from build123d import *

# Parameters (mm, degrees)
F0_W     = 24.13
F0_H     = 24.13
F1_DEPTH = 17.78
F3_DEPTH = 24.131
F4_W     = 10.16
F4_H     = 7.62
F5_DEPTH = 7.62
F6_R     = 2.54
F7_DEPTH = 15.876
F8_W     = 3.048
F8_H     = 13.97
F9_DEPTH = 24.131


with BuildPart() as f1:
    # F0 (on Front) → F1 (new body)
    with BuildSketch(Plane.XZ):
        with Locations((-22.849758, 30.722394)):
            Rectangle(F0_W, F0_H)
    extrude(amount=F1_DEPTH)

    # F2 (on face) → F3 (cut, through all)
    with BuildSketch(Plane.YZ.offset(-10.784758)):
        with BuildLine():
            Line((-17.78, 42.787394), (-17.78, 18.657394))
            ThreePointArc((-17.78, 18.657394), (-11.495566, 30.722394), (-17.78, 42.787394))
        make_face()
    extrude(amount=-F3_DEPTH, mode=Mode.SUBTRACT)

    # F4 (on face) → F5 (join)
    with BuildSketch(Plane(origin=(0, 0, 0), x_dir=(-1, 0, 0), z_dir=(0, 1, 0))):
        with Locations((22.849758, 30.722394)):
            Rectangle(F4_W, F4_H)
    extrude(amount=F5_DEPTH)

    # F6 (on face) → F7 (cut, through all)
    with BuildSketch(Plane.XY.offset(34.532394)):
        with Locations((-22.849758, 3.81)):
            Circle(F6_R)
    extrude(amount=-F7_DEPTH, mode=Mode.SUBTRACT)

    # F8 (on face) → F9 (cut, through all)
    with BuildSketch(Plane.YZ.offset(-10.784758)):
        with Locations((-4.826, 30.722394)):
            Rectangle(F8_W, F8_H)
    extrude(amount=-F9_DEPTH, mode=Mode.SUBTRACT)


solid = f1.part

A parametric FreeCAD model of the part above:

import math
import FreeCAD as App
import Part
import Sketcher

V = App.Vector
Q = App.Units.Quantity


def add_polygon(sketch, points):
    """Adds a closed chain of lines whose ends are joined by coincident constraints."""
    first, n = sketch.GeometryCount, len(points)
    for a, b in zip(points, points[1:] + points[:1]):
        sketch.addGeometry(Part.LineSegment(App.Vector(*a, 0), App.Vector(*b, 0)), False)
    for i in range(n):
        sketch.addConstraint(Sketcher.Constraint("Coincident", first + i, 2, first + (i + 1) % n, 1))

doc = App.newDocument("Part")
params = doc.addObject("Spreadsheet::Sheet", "Params")
for row, (alias, value) in enumerate([
    ("sketch1_width", "0.95 in"),
    ("pad1_length", "0.7 in"),
    ("sketch2_height", "0.95 in"),
    ("sketch3_width", "0.4 in"),
    ("sketch3_height", "0.3 in"),
    ("pad2_length", "0.3 in"),
    ("sketch4_diameter", "0.2 in"),
    ("sketch5_width", "0.12 in"),
    ("sketch5_height", "0.55 in"),
], start=1):
    params.set(f"A{row}", alias)
    params.set(f"B{row}", "=" + value)
    params.setAlias(f"B{row}", alias)

body = doc.addObject("PartDesign::Body", "Body")

sketch1 = body.newObject("Sketcher::SketchObject", "Sketch")
sketch1.AttachmentSupport = (doc.getObject("XZ_Plane"), [""])
sketch1.MapMode = "FlatFace"
add_polygon(sketch1, [(-35, 43), (-35, 19), (-11, 19), (-11, 43)])
sketch1.addConstraint([
    Sketcher.Constraint("Vertical", 0),
    Sketcher.Constraint("Horizontal", 1),
    Sketcher.Constraint("Vertical", 2),
    Sketcher.Constraint("Horizontal", 3),
    Sketcher.Constraint("Equal", 3, 0),
    Sketcher.Constraint("DistanceX", 1, 1, 1, 2, Q("0.95 in")),
    Sketcher.Constraint("DistanceX", 0, 2, -1, 1, Q("34.914758 mm")),
    Sketcher.Constraint("DistanceY", -1, 1, 0, 2, Q("18.657394 mm")),
])
sketch1.setExpression("Constraints[9]", "Params.sketch1_width")
pad1 = body.newObject("PartDesign::Pad", "Pad")
pad1.Profile = sketch1
pad1.setExpression("Length", "Params.pad1_length")

sketch2 = body.newObject("Sketcher::SketchObject", "Sketch001")
sketch2.AttachmentSupport = (doc.getObject("YZ_Plane"), [""])
sketch2.MapMode = "FlatFace"
sketch2.AttachmentOffset = App.Placement(V(0, 0, -10.784758), App.Rotation())
sketch2.addGeometry([
    Part.LineSegment(V(-18, 43, 0), V(-18, 19, 0)),
    Part.ArcOfCircle(Part.Circle(V(-26, 31, 0), V(0, 0, 1), 15), math.radians(-55), math.radians(55)),
], False)
sketch2.addConstraint([
    Sketcher.Constraint("Coincident", 0, 1, 1, 2),
    Sketcher.Constraint("Coincident", 1, 1, 0, 2),
    Sketcher.Constraint("Vertical", 0),
    Sketcher.Constraint("DistanceY", 0, 2, 0, 1, Q("0.95 in")),
    Sketcher.Constraint("DistanceX", 0, 1, -1, 1, Q("0.7 in")),
    Sketcher.Constraint("Radius", 1, Q("14.723548 mm")),
    Sketcher.Constraint("DistanceY", -1, 1, 1, 3, Q("30.722394 mm")),
])
sketch2.setExpression("Constraints[3]", "Params.sketch2_height")
pocket1 = body.newObject("PartDesign::Pocket", "Pocket")
pocket1.Profile = sketch2
pocket1.Type = "ThroughAll"

sketch3 = body.newObject("Sketcher::SketchObject", "Sketch002")
sketch3.AttachmentSupport = (doc.getObject("XZ_Plane"), [""])
sketch3.MapMode = "FlatFace"
add_polygon(sketch3, [(-18, 35), (-18, 27), (-28, 27), (-28, 35)])
sketch3.addConstraint([
    Sketcher.Constraint("Vertical", 0),
    Sketcher.Constraint("Horizontal", 1),
    Sketcher.Constraint("Vertical", 2),
    Sketcher.Constraint("Horizontal", 3),
    Sketcher.Constraint("DistanceX", 1, 2, 1, 1, Q("0.4 in")),
    Sketcher.Constraint("DistanceY", 0, 2, 0, 1, Q("0.3 in")),
    Sketcher.Constraint("DistanceX", 0, 2, -1, 1, Q("17.769758 mm")),
    Sketcher.Constraint("DistanceY", -1, 1, 0, 2, Q("26.912394 mm")),
])
sketch3.setExpression("Constraints[8]", "Params.sketch3_width")
sketch3.setExpression("Constraints[9]", "Params.sketch3_height")
pad2 = body.newObject("PartDesign::Pad", "Pad001")
pad2.Profile = sketch3
pad2.setExpression("Length", "Params.pad2_length")
pad2.Reversed = True

sketch4 = body.newObject("Sketcher::SketchObject", "Sketch003")
sketch4.AttachmentSupport = (doc.getObject("XY_Plane"), [""])
sketch4.MapMode = "FlatFace"
sketch4.AttachmentOffset = App.Placement(V(0, 0, 34.532394), App.Rotation())
sketch4.addGeometry(Part.Circle(V(-22.8, 3.8, 0), V(0, 0, 1), 2.5), False)
sketch4.addConstraint([
    Sketcher.Constraint("Diameter", 0, Q("0.2 in")),
    Sketcher.Constraint("DistanceY", -1, 1, 0, 3, Q("0.15 in")),
    Sketcher.Constraint("DistanceX", 0, 3, -1, 1, Q("22.849758 mm")),
])
sketch4.setExpression("Constraints[0]", "Params.sketch4_diameter")
pocket2 = body.newObject("PartDesign::Pocket", "Pocket001")
pocket2.Profile = sketch4
pocket2.Type = "ThroughAll"

sketch5 = body.newObject("Sketcher::SketchObject", "Sketch004")
sketch5.AttachmentSupport = (doc.getObject("YZ_Plane"), [""])
sketch5.MapMode = "FlatFace"
sketch5.AttachmentOffset = App.Placement(V(0, 0, -10.784758), App.Rotation())
add_polygon(sketch5, [(-6.3, 37.7), (-6.3, 23.7), (-3.3, 23.7), (-3.3, 37.7)])
sketch5.addConstraint([
    Sketcher.Constraint("Vertical", 0),
    Sketcher.Constraint("Horizontal", 1),
    Sketcher.Constraint("Vertical", 2),
    Sketcher.Constraint("Horizontal", 3),
    Sketcher.Constraint("DistanceX", 1, 1, 1, 2, Q("0.12 in")),
    Sketcher.Constraint("DistanceY", 0, 2, 0, 1, Q("0.55 in")),
    Sketcher.Constraint("DistanceX", 0, 2, -1, 1, Q("0.25 in")),
    Sketcher.Constraint("DistanceY", -1, 1, 0, 2, Q("23.737394 mm")),
])
sketch5.setExpression("Constraints[8]", "Params.sketch5_width")
sketch5.setExpression("Constraints[9]", "Params.sketch5_height")
pocket3 = body.newObject("PartDesign::Pocket", "Pocket002")
pocket3.Profile = sketch5
pocket3.Type = "ThroughAll"

doc.recompute()
